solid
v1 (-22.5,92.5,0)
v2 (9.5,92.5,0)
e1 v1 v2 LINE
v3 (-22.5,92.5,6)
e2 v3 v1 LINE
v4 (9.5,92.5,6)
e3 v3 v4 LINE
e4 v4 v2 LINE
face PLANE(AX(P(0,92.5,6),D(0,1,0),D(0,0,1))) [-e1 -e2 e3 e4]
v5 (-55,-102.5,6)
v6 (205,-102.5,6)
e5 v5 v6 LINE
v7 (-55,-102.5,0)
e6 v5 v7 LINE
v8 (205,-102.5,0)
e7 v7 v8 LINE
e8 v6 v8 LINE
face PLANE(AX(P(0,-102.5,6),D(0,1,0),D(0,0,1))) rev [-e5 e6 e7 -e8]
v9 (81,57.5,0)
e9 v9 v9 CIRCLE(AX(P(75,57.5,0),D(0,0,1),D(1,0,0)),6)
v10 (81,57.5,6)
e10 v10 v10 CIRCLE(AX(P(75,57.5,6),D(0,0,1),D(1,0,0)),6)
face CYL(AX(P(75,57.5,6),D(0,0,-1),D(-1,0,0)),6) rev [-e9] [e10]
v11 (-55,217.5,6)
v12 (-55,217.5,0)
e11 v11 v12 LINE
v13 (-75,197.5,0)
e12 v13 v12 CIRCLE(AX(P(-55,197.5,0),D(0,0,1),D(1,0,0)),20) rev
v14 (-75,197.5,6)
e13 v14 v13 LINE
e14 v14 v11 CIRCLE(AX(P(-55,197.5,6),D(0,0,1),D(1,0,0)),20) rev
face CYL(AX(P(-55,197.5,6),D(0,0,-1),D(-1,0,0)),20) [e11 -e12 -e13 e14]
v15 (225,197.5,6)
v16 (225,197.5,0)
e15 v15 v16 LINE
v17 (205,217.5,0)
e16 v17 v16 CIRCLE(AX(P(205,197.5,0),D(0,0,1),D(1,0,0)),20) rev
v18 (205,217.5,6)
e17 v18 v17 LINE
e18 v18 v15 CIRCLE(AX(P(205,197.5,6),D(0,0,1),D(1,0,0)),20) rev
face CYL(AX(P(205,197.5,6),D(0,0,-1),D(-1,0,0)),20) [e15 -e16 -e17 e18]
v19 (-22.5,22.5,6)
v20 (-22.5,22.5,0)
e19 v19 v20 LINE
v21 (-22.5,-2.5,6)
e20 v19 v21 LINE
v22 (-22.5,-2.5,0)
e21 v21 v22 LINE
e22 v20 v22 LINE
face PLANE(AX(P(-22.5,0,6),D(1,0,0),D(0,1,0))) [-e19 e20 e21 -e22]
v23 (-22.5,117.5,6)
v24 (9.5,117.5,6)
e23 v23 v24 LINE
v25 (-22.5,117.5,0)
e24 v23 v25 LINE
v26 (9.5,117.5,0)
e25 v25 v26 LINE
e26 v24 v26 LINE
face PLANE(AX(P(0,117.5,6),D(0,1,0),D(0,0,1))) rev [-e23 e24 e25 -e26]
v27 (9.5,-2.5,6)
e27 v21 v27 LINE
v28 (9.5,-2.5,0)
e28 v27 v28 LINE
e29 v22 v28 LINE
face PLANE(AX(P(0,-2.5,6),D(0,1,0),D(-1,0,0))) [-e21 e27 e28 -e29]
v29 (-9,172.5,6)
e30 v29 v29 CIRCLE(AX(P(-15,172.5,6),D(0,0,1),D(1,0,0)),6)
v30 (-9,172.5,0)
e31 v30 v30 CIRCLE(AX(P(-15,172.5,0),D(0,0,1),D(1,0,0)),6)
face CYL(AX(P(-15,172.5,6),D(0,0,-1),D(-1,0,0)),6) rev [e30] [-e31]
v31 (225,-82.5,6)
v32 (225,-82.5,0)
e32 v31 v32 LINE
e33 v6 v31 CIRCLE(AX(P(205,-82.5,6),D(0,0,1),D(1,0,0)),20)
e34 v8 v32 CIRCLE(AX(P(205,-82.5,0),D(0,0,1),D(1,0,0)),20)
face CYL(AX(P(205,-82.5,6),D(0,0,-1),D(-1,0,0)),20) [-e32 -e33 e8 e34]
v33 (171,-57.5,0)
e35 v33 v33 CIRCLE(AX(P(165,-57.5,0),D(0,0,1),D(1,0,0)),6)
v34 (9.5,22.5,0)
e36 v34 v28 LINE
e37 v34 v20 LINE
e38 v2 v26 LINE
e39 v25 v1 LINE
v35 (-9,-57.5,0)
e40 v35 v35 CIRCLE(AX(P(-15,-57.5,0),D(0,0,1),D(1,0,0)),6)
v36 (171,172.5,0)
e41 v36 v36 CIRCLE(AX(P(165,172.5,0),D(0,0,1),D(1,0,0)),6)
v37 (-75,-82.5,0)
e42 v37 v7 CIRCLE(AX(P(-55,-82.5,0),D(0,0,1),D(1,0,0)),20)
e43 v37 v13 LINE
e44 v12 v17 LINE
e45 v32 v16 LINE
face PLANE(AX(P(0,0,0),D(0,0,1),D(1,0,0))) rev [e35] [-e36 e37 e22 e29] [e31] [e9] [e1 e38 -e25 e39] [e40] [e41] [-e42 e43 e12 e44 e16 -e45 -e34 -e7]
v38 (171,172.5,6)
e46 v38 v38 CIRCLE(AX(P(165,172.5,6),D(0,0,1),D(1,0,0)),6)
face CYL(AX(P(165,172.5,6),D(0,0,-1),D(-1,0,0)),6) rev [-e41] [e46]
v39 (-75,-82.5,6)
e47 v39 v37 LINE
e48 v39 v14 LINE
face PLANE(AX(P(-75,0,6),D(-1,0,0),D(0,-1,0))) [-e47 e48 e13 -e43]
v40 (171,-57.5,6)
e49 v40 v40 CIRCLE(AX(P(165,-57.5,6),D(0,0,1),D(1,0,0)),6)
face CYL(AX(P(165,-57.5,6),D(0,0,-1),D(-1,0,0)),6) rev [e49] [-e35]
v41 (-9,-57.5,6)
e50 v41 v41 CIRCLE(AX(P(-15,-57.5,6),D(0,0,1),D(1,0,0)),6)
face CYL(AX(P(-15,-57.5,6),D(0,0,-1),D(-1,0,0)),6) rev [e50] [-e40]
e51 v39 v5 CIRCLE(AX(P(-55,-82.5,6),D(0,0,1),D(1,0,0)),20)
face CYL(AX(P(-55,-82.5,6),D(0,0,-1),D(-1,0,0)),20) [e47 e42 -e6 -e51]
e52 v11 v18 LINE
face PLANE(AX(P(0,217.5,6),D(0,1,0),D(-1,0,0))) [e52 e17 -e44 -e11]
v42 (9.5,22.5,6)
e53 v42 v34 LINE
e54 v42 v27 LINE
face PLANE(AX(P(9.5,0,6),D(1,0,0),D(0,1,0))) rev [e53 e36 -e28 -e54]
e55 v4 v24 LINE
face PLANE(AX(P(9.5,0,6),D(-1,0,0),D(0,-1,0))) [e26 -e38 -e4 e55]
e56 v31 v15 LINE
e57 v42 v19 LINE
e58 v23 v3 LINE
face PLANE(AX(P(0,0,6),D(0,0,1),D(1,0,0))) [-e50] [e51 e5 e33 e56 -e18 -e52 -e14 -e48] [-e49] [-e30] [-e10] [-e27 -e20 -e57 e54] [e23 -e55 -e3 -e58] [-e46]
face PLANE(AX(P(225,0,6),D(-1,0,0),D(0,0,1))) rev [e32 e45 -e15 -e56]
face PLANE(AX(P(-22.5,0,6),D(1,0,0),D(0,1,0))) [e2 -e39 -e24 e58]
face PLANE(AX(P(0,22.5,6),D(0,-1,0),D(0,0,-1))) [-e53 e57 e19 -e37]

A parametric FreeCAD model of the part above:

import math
import FreeCAD as App
import Part
import Sketcher
Q = App.Units.Quantity

doc = App.newDocument("Part")
body = doc.addObject("PartDesign::Body", "Body")

# Sketch on XY plane
sketch1 = doc.addObject("Sketcher::SketchObject", "Sketch")
body.addObject(sketch1)
sketch1.AttachmentSupport = (doc.XY_Plane, [""])
sketch1.MapMode = "FlatFace"
sketch1.addGeometry(Part.LineSegment(App.Vector(-55, -102, 0), App.Vector(205, -102, 0)), False)
sketch1.addGeometry(Part.ArcOfCircle(Part.Circle(App.Vector(205, -83, 0), App.Vector(0, 0, 1), 20), math.radians(-90), math.radians(0)), False)
sketch1.addGeometry(Part.LineSegment(App.Vector(225, -82, 0), App.Vector(225, 198, 0)), False)
sketch1.addGeometry(Part.ArcOfCircle(Part.Circle(App.Vector(205, 198, 0), App.Vector(0, 0, 1), 20), math.radians(0), math.radians(90)), False)
sketch1.addGeometry(Part.LineSegment(App.Vector(205, 218, 0), App.Vector(-55, 218, 0)), False)
sketch1.addGeometry(Part.ArcOfCircle(Part.Circle(App.Vector(-55, 198, 0), App.Vector(0, 0, 1), 20), math.radians(90), math.radians(180)), False)
sketch1.addGeometry(Part.LineSegment(App.Vector(-75, 198, 0), App.Vector(-75, -82, 0)), False)
sketch1.addGeometry(Part.ArcOfCircle(Part.Circle(App.Vector(-55, -83, 0), App.Vector(0, 0, 1), 20), math.radians(180), math.radians(270)), False)
sketch1.addGeometry(Part.Circle(App.Vector(-15, -58, 0), App.Vector(0, 0, 1), 6), False)
sketch1.addGeometry(Part.LineSegment(App.Vector(-22, 22, 0), App.Vector(10, 22, 0)), False)
sketch1.addGeometry(Part.LineSegment(App.Vector(10, 22, 0), App.Vector(10, -2, 0)), False)
sketch1.addGeometry(Part.LineSegment(App.Vector(10, -2, 0), App.Vector(-22, -2, 0)), False)
sketch1.addGeometry(Part.LineSegment(App.Vector(-22, -2, 0), App.Vector(-22, 22, 0)), False)
sketch1.addGeometry(Part.Circle(App.Vector(165, -58, 0), App.Vector(0, 0, 1), 6), False)
sketch1.addGeometry(Part.LineSegment(App.Vector(10, 92, 0), App.Vector(-22, 92, 0)), False)
sketch1.addGeometry(Part.LineSegment(App.Vector(-22, 92, 0), App.Vector(-22, 118, 0)), False)
sketch1.addGeometry(Part.LineSegment(App.Vector(-22, 118, 0), App.Vector(10, 118, 0)), False)
sketch1.addGeometry(Part.LineSegment(App.Vector(10, 118, 0), App.Vector(10, 92, 0)), False)
sketch1.addGeometry(Part.Circle(App.Vector(-15, 172, 0), App.Vector(0, 0, 1), 6), False)
sketch1.addGeometry(Part.Circle(App.Vector(75, 58, 0), App.Vector(0, 0, 1), 6), False)
sketch1.addGeometry(Part.Circle(App.Vector(165, 172, 0), App.Vector(0, 0, 1), 6), False)
sketch1.addConstraint(Sketcher.Constraint("Tangent", 0, 2, 1, 1))
sketch1.addConstraint(Sketcher.Constraint("Tangent", 1, 2, 2, 1))
sketch1.addConstraint(Sketcher.Constraint("Tangent", 2, 2, 3, 1))
sketch1.addConstraint(Sketcher.Constraint("Tangent", 3, 2, 4, 1))
sketch1.addConstraint(Sketcher.Constraint("Tangent", 4, 2, 5, 1))
sketch1.addConstraint(Sketcher.Constraint("Tangent", 5, 2, 6, 1))
sketch1.addConstraint(Sketcher.Constraint("Tangent", 6, 2, 7, 1))
sketch1.addConstraint(Sketcher.Constraint("Tangent", 7, 2, 0, 1))
sketch1.addConstraint(Sketcher.Constraint("Coincident", 9, 2, 10, 1))
sketch1.addConstraint(Sketcher.Constraint("Coincident", 10, 2, 11, 1))
sketch1.addConstraint(Sketcher.Constraint("Coincident", 11, 2, 12, 1))
sketch1.addConstraint(Sketcher.Constraint("Coincident", 12, 2, 9, 1))
sketch1.addConstraint(Sketcher.Constraint("Coincident", 14, 2, 15, 1))
sketch1.addConstraint(Sketcher.Constraint("Coincident", 15, 2, 16, 1))
sketch1.addConstraint(Sketcher.Constraint("Coincident", 16, 2, 17, 1))
sketch1.addConstraint(Sketcher.Constraint("Coincident", 17, 2, 14, 1))
sketch1.addConstraint(Sketcher.Constraint("Horizontal", 0))
sketch1.addConstraint(Sketcher.Constraint("Vertical", 2))
sketch1.addConstraint(Sketcher.Constraint("Horizontal", 4))
sketch1.addConstraint(Sketcher.Constraint("Vertical", 6))
sketch1.addConstraint(Sketcher.Constraint("Horizontal", 9))
sketch1.addConstraint(Sketcher.Constraint("Vertical", 10))
sketch1.addConstraint(Sketcher.Constraint("Horizontal", 11))
sketch1.addConstraint(Sketcher.Constraint("Vertical", 12))
sketch1.addConstraint(Sketcher.Constraint("Horizontal", 14))
sketch1.addConstraint(Sketcher.Constraint("Vertical", 15))
sketch1.addConstraint(Sketcher.Constraint("Horizontal", 16))
sketch1.addConstraint(Sketcher.Constraint("Vertical", 17))
sketch1.addConstraint(Sketcher.Constraint("Equal", 1, 3))
sketch1.addConstraint(Sketcher.Constraint("Equal", 3, 5))
sketch1.addConstraint(Sketcher.Constraint("Equal", 5, 7))
sketch1.addConstraint(Sketcher.Constraint("Equal", 8, 13))
sketch1.addConstraint(Sketcher.Constraint("Equal", 13, 18))
sketch1.addConstraint(Sketcher.Constraint("Equal", 18, 19))
sketch1.addConstraint(Sketcher.Constraint("Equal", 19, 20))
sketch1.addConstraint(Sketcher.Constraint("Horizontal", 8, 3, 13, 3))
sketch1.addConstraint(Sketcher.Constraint("Horizontal", 18, 3, 20, 3))
sketch1.addConstraint(Sketcher.Constraint("Vertical", 8, 3, 18, 3))
sketch1.addConstraint(Sketcher.Constraint("Vertical", 13, 3, 20, 3))
sketch1.addConstraint(Sketcher.Constraint("Vertical", 12, 2, 14, 2))
sketch1.addConstraint(Sketcher.Constraint("Vertical", 10, 2, 16, 2))
sketch1.addConstraint(Sketcher.Constraint("Equal", 12, 15))
sketch1.addConstraint(Sketcher.Constraint("Diameter", 8, Q("12 mm")))
sketch1.addConstraint(Sketcher.Constraint("Radius", 1, Q("20 mm")))
sketch1.addConstraint(Sketcher.Constraint("DistanceX", 0, 1, 0, 2, Q("260 mm")))
sketch1.addConstraint(Sketcher.Constraint("DistanceX", 9, 1, 9, 2, Q("32 mm")))
sketch1.addConstraint(Sketcher.Constraint("DistanceY", 2, 1, 2, 2, Q("280 mm")))
sketch1.addConstraint(Sketcher.Constraint("DistanceY", 10, 2, 10, 1, Q("25 mm")))
sketch1.addConstraint(Sketcher.Constraint("DistanceX", -1, 1, 1, 3, Q("205 mm")))
sketch1.addConstraint(Sketcher.Constraint("DistanceX", 8, 3, -1, 1, Q("15 mm")))
sketch1.addConstraint(Sketcher.Constraint("DistanceX", -1, 1, 13, 3, Q("165 mm")))
sketch1.addConstraint(Sketcher.Constraint("DistanceX", -1, 1, 19, 3, Q("75 mm")))
sketch1.addConstraint(Sketcher.Constraint("DistanceY", 7, 3, 8, 3, Q("25 mm")))
sketch1.addConstraint(Sketcher.Constraint("DistanceY", 18, 3, 5, 3, Q("25 mm")))
sketch1.addConstraint(Sketcher.Constraint("DistanceY", 8, 3, 19, 3, Q("115 mm")))
sketch1.addConstraint(Sketcher.Constraint("DistanceY", 9, 2, 19, 3, Q("35 mm")))
sketch1.addConstraint(Sketcher.Constraint("DistanceY", 12, 2, 14, 2, Q("70 mm")))
sketch1.addConstraint(Sketcher.Constraint("DistanceY", 1, 3, -1, 1, Q("82.5 mm")))
sketch1.addConstraint(Sketcher.Constraint("DistanceX", -1, 1, 9, 2, Q("9.5 mm")))
pad1 = doc.addObject("PartDesign::Pad", "Pad")
body.addObject(pad1)
pad1.Profile = sketch1
pad1.Length = 6

doc.recompute()
